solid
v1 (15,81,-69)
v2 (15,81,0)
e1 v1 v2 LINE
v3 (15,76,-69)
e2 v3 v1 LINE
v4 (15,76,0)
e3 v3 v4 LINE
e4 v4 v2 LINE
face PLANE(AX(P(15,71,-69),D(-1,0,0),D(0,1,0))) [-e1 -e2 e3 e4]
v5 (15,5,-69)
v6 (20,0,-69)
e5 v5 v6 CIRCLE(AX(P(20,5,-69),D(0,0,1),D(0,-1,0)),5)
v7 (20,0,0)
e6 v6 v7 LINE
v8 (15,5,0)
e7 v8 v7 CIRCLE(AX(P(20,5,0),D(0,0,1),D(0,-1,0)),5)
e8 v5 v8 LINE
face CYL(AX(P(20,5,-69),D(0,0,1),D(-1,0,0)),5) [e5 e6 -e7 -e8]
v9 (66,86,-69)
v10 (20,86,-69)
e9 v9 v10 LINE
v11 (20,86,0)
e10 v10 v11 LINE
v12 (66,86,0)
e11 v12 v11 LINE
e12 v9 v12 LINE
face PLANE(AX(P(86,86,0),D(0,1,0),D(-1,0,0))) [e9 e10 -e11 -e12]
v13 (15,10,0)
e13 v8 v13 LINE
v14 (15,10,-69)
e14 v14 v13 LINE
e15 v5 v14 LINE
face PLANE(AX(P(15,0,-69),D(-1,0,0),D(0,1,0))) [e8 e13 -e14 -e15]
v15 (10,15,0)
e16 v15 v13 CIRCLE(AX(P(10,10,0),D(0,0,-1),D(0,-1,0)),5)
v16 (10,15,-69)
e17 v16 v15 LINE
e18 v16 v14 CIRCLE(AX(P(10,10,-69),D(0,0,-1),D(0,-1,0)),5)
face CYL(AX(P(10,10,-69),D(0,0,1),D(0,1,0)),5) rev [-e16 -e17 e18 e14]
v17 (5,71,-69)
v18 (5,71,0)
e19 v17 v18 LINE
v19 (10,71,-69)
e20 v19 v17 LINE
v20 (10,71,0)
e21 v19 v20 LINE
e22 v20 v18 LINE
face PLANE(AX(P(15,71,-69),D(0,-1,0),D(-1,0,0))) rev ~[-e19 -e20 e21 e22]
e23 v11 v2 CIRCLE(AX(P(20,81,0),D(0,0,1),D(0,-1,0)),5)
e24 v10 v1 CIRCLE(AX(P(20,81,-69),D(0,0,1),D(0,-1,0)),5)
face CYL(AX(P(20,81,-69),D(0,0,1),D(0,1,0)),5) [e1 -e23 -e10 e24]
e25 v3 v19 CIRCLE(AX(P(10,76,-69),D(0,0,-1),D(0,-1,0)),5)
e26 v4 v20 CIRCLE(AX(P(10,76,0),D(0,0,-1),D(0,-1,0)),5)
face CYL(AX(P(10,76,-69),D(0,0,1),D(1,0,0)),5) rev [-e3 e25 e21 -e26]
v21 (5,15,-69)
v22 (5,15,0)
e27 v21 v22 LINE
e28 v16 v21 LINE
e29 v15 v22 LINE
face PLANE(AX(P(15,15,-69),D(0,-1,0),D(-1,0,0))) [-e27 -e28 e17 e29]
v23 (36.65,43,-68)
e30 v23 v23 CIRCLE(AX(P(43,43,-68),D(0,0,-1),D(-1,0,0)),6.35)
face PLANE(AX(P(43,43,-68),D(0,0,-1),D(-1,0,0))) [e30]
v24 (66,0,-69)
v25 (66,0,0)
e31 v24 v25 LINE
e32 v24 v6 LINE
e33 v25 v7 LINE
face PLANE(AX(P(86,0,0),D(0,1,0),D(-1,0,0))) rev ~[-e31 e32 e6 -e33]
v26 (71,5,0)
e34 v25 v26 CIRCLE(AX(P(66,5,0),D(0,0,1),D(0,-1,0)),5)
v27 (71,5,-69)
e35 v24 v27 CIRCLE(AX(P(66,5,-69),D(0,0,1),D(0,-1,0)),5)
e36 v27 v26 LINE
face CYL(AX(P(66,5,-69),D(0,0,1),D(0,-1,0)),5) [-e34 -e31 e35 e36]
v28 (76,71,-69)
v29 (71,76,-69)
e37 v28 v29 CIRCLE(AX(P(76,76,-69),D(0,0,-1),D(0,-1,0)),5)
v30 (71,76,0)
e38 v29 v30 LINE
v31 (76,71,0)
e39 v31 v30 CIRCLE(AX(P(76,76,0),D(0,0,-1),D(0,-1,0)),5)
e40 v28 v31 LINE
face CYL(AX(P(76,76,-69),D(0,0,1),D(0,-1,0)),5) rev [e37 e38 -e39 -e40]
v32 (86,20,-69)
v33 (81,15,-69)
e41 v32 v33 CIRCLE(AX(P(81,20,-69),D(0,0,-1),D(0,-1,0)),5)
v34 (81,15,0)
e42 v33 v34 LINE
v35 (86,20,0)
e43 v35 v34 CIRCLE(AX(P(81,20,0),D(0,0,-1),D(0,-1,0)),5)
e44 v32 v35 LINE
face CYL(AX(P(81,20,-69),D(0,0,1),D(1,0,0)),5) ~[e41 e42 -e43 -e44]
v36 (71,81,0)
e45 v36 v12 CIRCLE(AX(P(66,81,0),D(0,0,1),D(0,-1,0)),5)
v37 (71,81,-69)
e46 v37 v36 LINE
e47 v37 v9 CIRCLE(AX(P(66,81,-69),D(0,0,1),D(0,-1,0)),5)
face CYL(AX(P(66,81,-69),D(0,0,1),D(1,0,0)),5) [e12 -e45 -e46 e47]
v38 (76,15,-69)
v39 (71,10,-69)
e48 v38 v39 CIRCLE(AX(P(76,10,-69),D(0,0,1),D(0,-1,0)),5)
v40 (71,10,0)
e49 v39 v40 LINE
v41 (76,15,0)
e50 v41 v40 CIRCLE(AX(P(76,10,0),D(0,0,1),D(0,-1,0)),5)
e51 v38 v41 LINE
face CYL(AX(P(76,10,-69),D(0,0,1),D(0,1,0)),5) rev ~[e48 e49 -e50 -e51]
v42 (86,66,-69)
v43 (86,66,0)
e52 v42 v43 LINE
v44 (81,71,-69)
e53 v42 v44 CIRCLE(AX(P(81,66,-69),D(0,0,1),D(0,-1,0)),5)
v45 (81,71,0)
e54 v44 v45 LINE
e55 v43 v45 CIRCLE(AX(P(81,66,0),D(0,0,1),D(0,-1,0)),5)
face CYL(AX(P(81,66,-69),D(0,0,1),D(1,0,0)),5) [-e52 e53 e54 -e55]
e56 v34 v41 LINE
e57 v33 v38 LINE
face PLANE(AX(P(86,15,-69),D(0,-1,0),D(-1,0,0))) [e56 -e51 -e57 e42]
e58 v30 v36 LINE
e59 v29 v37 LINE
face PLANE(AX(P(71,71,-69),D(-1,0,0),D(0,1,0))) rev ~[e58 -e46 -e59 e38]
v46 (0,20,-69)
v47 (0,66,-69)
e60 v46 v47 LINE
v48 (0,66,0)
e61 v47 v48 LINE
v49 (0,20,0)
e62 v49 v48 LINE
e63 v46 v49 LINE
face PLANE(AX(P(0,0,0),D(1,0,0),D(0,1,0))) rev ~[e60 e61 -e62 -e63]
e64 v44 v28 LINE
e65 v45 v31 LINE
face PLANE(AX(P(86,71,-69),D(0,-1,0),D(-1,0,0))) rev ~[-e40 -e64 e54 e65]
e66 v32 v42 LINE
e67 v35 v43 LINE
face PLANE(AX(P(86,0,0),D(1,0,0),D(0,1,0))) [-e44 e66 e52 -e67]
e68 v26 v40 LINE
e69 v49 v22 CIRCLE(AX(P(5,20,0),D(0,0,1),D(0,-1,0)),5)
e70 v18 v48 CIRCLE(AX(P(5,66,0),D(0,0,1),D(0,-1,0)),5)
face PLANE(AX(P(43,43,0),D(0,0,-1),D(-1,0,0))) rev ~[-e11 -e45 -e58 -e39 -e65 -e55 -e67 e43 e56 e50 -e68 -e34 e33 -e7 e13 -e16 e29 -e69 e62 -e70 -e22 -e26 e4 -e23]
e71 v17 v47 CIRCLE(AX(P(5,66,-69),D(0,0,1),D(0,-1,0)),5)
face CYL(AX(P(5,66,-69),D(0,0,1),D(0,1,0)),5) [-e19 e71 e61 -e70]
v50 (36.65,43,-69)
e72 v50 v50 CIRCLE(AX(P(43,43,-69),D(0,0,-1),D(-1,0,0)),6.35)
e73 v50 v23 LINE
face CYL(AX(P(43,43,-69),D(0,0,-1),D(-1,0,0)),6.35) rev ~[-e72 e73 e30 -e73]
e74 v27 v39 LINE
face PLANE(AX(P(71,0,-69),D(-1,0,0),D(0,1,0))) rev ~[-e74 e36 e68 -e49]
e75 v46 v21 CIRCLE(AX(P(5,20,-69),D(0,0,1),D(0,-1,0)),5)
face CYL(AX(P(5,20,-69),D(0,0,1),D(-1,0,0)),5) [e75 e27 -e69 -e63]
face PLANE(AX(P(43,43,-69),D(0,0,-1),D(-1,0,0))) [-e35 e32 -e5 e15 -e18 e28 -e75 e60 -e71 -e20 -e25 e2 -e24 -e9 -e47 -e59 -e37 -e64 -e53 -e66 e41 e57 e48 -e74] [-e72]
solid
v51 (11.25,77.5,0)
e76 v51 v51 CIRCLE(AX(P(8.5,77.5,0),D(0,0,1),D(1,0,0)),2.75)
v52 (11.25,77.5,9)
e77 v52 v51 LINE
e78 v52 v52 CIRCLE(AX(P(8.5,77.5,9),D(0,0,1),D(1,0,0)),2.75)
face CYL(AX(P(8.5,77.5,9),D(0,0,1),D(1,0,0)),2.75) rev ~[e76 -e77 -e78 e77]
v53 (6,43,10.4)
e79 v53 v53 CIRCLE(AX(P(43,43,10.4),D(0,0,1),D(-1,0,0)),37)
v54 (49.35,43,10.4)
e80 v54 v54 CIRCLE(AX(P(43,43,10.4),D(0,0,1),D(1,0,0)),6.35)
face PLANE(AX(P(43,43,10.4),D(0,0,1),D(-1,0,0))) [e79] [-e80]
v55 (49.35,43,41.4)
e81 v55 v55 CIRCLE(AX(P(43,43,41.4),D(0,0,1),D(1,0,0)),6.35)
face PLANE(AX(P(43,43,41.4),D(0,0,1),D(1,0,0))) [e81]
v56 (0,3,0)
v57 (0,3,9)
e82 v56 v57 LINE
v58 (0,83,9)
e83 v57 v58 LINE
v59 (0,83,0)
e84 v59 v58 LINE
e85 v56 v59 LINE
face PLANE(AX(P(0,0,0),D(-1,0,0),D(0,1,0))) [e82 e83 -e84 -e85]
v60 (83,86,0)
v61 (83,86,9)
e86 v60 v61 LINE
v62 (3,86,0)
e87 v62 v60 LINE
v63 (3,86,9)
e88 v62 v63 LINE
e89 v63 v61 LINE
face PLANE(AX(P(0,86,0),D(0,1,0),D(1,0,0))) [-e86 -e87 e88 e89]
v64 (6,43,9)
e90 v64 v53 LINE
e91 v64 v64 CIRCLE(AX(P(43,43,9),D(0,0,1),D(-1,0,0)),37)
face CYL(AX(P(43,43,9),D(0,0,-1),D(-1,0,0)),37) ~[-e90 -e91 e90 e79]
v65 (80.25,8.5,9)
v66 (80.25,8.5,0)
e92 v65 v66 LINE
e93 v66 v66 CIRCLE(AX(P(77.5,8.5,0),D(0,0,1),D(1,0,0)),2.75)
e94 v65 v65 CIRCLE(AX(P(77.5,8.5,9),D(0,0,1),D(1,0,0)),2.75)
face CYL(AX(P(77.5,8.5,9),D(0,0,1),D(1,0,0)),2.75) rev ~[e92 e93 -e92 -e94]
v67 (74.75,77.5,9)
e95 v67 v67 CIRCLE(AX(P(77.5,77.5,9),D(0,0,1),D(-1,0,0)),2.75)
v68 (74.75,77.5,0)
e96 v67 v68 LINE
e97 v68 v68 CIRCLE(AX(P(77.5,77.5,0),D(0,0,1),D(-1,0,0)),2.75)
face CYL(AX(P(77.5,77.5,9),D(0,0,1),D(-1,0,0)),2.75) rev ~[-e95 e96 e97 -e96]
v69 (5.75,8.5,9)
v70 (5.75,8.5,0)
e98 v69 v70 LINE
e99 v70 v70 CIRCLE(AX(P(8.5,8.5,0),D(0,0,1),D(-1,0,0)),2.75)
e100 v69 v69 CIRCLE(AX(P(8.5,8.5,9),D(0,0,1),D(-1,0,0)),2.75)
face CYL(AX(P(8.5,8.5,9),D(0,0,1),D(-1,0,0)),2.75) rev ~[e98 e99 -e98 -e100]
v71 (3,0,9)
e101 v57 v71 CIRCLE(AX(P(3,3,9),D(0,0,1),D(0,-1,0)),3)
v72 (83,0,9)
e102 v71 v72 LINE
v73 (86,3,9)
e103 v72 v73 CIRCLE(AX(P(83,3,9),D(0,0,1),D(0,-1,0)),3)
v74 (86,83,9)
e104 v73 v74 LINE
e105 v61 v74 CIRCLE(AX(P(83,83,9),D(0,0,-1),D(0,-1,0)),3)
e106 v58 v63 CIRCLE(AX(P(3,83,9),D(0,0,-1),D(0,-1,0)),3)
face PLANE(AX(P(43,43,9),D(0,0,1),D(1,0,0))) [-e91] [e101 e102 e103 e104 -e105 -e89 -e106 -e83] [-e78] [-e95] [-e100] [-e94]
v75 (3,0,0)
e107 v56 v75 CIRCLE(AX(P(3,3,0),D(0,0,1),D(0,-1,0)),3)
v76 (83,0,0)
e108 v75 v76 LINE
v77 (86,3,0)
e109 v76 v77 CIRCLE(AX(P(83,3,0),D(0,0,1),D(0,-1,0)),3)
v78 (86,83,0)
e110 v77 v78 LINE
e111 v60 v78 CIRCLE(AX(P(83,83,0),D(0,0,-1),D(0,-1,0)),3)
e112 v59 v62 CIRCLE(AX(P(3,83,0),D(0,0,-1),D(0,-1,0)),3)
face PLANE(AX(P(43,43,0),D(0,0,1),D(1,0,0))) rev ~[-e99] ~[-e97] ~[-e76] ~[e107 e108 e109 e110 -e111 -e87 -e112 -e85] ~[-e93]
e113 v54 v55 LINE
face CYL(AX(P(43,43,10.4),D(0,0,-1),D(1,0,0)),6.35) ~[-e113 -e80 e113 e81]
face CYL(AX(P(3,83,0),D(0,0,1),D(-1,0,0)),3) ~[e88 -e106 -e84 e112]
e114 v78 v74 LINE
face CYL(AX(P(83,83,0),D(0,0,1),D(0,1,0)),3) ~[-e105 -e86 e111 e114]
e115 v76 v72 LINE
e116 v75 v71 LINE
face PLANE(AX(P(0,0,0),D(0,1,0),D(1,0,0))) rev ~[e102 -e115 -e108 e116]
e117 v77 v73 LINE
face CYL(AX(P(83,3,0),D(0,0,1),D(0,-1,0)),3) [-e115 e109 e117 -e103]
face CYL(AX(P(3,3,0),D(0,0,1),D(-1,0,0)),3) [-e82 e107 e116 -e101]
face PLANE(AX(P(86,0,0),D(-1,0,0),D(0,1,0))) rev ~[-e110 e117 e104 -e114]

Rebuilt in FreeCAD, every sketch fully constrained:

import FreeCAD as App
import Part
import Sketcher
from FreeCAD import Vector
Q = App.Units.Quantity


def edges_at(feature, points):
    """Names of the edges that pass closest to the given points."""
    edges = feature.Shape.Edges
    near = lambda p: min(range(len(edges)), key=lambda i: edges[i].distToShape(Part.Vertex(*p))[0])
    return sorted({f"Edge{near(p) + 1}" for p in points})


def add_polygon(sketch, points):
    """Adds a closed chain of lines whose ends are joined by coincident constraints."""
    first, n = sketch.GeometryCount, len(points)
    for a, b in zip(points, points[1:] + points[:1]):
        sketch.addGeometry(Part.LineSegment(App.Vector(*a, 0), App.Vector(*b, 0)), False)
    for i in range(n):
        sketch.addConstraint(Sketcher.Constraint("Coincident", first + i, 2, first + (i + 1) % n, 1))

doc = App.newDocument("Part")
body = doc.addObject("PartDesign::Body", "Body")

# Sketch on XY plane
sketch1 = body.newObject("Sketcher::SketchObject", "Sketch")
sketch1.AttachmentSupport = (doc.getObject("XY_Plane"), [""])
sketch1.MapMode = "FlatFace"
add_polygon(sketch1, [(0, 86), (0, 0), (86, 0), (86, 86)])  # lines 0-3
sketch1.addConstraint([
    Sketcher.Constraint("Vertical", 0),
    Sketcher.Constraint("Horizontal", 1),
    Sketcher.Constraint("Vertical", 2),
    Sketcher.Constraint("Horizontal", 3),
    Sketcher.Constraint("Coincident", 0, 2, -1, 1),
    Sketcher.Constraint("Equal", 3, 0),
    Sketcher.Constraint("DistanceX", 1, 1, 1, 2, Q("86 mm")),
])
pad1 = body.newObject("PartDesign::Pad", "Pad")
pad1.Profile = sketch1
pad1.Length = 9

# Sketch on XY plane
sketch2 = body.newObject("Sketcher::SketchObject", "Sketch001")
sketch2.AttachmentSupport = (doc.getObject("XY_Plane"), [""])
sketch2.MapMode = "FlatFace"
sketch2.AttachmentOffset = App.Placement(Vector(0, 0, 9), App.Rotation())
sketch2.addGeometry(Part.Circle(Vector(43, 43, 0), Vector(0, 0, 1), 37), False)
sketch2.addConstraint([
    Sketcher.Constraint("Diameter", 0, Q("74 mm")),
    Sketcher.Constraint("DistanceX", -1, 1, 0, 3, Q("43 mm")),
    Sketcher.Constraint("DistanceY", -1, 1, 0, 3, Q("43 mm")),
])
pad2 = body.newObject("PartDesign::Pad", "Pad001")
pad2.Profile = sketch2
pad2.Length = 1.4

# Sketch on XY plane
sketch3 = body.newObject("Sketcher::SketchObject", "Sketch002")
sketch3.AttachmentSupport = (doc.getObject("XY_Plane"), [""])
sketch3.MapMode = "FlatFace"
sketch3.AttachmentOffset = App.Placement(Vector(0, 0, 10.4), App.Rotation())
sketch3.addGeometry(Part.Circle(Vector(43, 43, 0), Vector(0, 0, 1), 6), False)
sketch3.addConstraint([
    Sketcher.Constraint("Diameter", 0, Q("12.7 mm")),
    Sketcher.Constraint("DistanceX", -1, 1, 0, 3, Q("43 mm")),
    Sketcher.Constraint("DistanceY", -1, 1, 0, 3, Q("43 mm")),
])
pad3 = body.newObject("PartDesign::Pad", "Pad002")
pad3.Profile = sketch3
pad3.Length = 31
body2 = doc.addObject("PartDesign::Body", "Body001")

# Sketch on XY plane
sketch4 = body2.newObject("Sketcher::SketchObject", "Sketch003")
sketch4.AttachmentSupport = (doc.getObject("XY_Plane001"), [""])
sketch4.MapMode = "FlatFace"
add_polygon(sketch4, [(86, 86), (86, 0), (0, 0), (0, 86)])  # lines 0-3
sketch4.addConstraint([
    Sketcher.Constraint("Vertical", 0),
    Sketcher.Constraint("Horizontal", 1),
    Sketcher.Constraint("Vertical", 2),
    Sketcher.Constraint("Horizontal", 3),
    Sketcher.Constraint("Coincident", 1, 2, -1, 1),
    Sketcher.Constraint("Equal", 3, 0),
    Sketcher.Constraint("DistanceX", 1, 2, 1, 1, Q("86 mm")),
])
pad4 = body2.newObject("PartDesign::Pad", "Pad003")
pad4.Profile = sketch4
pad4.Length = 69
pad4.Reversed = True
body3 = doc.addObject("PartDesign::Body", "Body002")
body3.AllowCompound = True

# Sketch on XY plane
sketch5 = body3.newObject("Sketcher::SketchObject", "Sketch004")
sketch5.AttachmentSupport = (doc.getObject("XY_Plane002"), [""])
sketch5.MapMode = "FlatFace"
sketch5.AttachmentOffset = App.Placement(Vector(0, 0, 9), App.Rotation())
sketch5.addGeometry([
    Part.Circle(Vector(8.5, 77.5, 0), Vector(0, 0, 1), 2.8),
    Part.Circle(Vector(77.5, 77.5, 0), Vector(0, 0, 1), 2.8),
    Part.Circle(Vector(77.5, 8.5, 0), Vector(0, 0, 1), 2.8),
    Part.Circle(Vector(8.5, 8.5, 0), Vector(0, 0, 1), 2.8),
], False)
sketch5.addConstraint([
    Sketcher.Constraint("Equal", 0, 1),
    Sketcher.Constraint("Equal", 1, 2),
    Sketcher.Constraint("Equal", 2, 3),
    Sketcher.Constraint("Horizontal", 0, 3, 1, 3),
    Sketcher.Constraint("Horizontal", 2, 3, 3, 3),
    Sketcher.Constraint("Vertical", 1, 3, 2, 3),
    Sketcher.Constraint("Vertical", 0, 3, 3, 3),
    Sketcher.Constraint("Diameter", 0, Q("5.5 mm")),
    Sketcher.Constraint("DistanceX", 0, 3, 1, 3, Q("69 mm")),
    Sketcher.Constraint("DistanceY", 2, 3, 1, 3, Q("69 mm")),
    Sketcher.Constraint("DistanceX", -1, 1, 0, 3, Q("8.5 mm")),
    Sketcher.Constraint("DistanceY", -1, 1, 0, 3, Q("77.5 mm")),
])
pad5 = body3.newObject("PartDesign::Pad", "Pad004")
pad5.Profile = sketch5
pad5.Length = 10
pad5.Reversed = True
doc.recompute()

body4 = doc.addObject("PartDesign::Body", "Body003")
body4.BaseFeature = body3
boolean = body.newObject("PartDesign::Boolean", "Boolean")
boolean.Type = "Cut"
boolean.addObjects([body4])
doc.recompute()

fillet = body.newObject("PartDesign::Fillet", "Fillet")
fillet.Base = (boolean, edges_at(boolean, [
    (0, 86, 4.5),
    (86, 86, 4.5),
    (86, 0, 4.5),
    (0, 0, 4.5),
]))
fillet.Radius = 3
doc.recompute()

boolean2 = body2.newObject("PartDesign::Boolean", "Boolean001")
boolean2.Type = "Cut"
boolean2.addObjects([body3])

# Sketch on XY plane
sketch6 = body2.newObject("Sketcher::SketchObject", "Sketch005")
sketch6.AttachmentSupport = (doc.getObject("XY_Plane001"), [""])
sketch6.MapMode = "FlatFace"
sketch6.AttachmentOffset = App.Placement(Vector(0, 0, -69), App.Rotation())
add_polygon(sketch6, [(86, 86), (86, 71), (71, 71), (71, 86)])  # lines 0-3
add_polygon(sketch6, [(15, 86), (15, 71), (0, 71), (0, 86)])  # lines 4-7
add_polygon(sketch6, [(15, 15), (15, 0), (0, 0), (0, 15)])  # lines 8-11
add_polygon(sketch6, [(86, 15), (86, 0), (71, 0), (71, 15)])  # lines 12-15
sketch6.addConstraint([
    Sketcher.Constraint("Vertical", 0),
    Sketcher.Constraint("Horizontal", 1),
    Sketcher.Constraint("Vertical", 2),
    Sketcher.Constraint("Horizontal", 3),
    Sketcher.Constraint("Vertical", 4),
    Sketcher.Constraint("Horizontal", 5),
    Sketcher.Constraint("Vertical", 6),
    Sketcher.Constraint("Horizontal", 7),
    Sketcher.Constraint("Vertical", 8),
    Sketcher.Constraint("Horizontal", 9),
    Sketcher.Constraint("Vertical", 10),
    Sketcher.Constraint("Horizontal", 11),
    Sketcher.Constraint("Vertical", 12),
    Sketcher.Constraint("Horizontal", 13),
    Sketcher.Constraint("Vertical", 14),
    Sketcher.Constraint("Horizontal", 15),
    Sketcher.Constraint("Coincident", 9, 2, -1, 1),
    Sketcher.Constraint("PointOnObject", 5, 2, -2),
    Sketcher.Constraint("PointOnObject", 12, 2, -1),
    Sketcher.Constraint("Horizontal", 1, 2, 4, 2),
    Sketcher.Constraint("Horizontal", 3, 2, 6, 2),
    Sketcher.Constraint("Horizontal", 11, 2, 14, 2),
    Sketcher.Constraint("Vertical", 7, 2, 8, 2),
    Sketcher.Constraint("Vertical", 3, 2, 12, 2),
    Sketcher.Constraint("Vertical", 2, 2, 13, 2),
    Sketcher.Constraint("Equal", 3, 5),
    Sketcher.Constraint("Equal", 15, 0),
    Sketcher.Constraint("Equal", 6, 8),
    Sketcher.Constraint("DistanceX", 1, 2, 1, 1, Q("15 mm")),
    Sketcher.Constraint("DistanceX", -1, 1, 0, 2, Q("86 mm")),
    Sketcher.Constraint("DistanceY", -1, 1, 0, 2, Q("71 mm")),
])
pocket1 = body2.newObject("PartDesign::Pocket", "Pocket")
pocket1.Profile = sketch6
pocket1.Length = 69
pocket1.Reversed = True
doc.recompute()

fillet2 = body2.newObject("PartDesign::Fillet", "Fillet001")
fillet2.Base = (pocket1, edges_at(pocket1, [
    (86, 71, -34.5),
    (71, 86, -34.5),
    (71, 71, -34.5),
    (15, 86, -34.5),
    (0, 71, -34.5),
    (15, 71, -34.5),
    (0, 15, -34.5),
    (15, 0, -34.5),
    (15, 15, -34.5),
    (71, 0, -34.5),
    (86, 15, -34.5),
    (71, 15, -34.5),
]))
fillet2.Radius = 5

# Sketch on XY plane
sketch7 = body2.newObject("Sketcher::SketchObject", "Sketch006")
sketch7.AttachmentSupport = (doc.getObject("XY_Plane001"), [""])
sketch7.MapMode = "FlatFace"
sketch7.AttachmentOffset = App.Placement(Vector(0, 0, -69), App.Rotation())
sketch7.addGeometry(Part.Circle(Vector(43, 43, 0), Vector(0, 0, 1), 6), False)
sketch7.addConstraint([
    Sketcher.Constraint("Diameter", 0, Q("12.7 mm")),
    Sketcher.Constraint("DistanceX", -1, 1, 0, 3, Q("43 mm")),
    Sketcher.Constraint("DistanceY", -1, 1, 0, 3, Q("43 mm")),
])
pocket2 = body2.newObject("PartDesign::Pocket", "Pocket001")
pocket2.Profile = sketch7
pocket2.Length = 1
pocket2.Reversed = True

doc.recompute()
